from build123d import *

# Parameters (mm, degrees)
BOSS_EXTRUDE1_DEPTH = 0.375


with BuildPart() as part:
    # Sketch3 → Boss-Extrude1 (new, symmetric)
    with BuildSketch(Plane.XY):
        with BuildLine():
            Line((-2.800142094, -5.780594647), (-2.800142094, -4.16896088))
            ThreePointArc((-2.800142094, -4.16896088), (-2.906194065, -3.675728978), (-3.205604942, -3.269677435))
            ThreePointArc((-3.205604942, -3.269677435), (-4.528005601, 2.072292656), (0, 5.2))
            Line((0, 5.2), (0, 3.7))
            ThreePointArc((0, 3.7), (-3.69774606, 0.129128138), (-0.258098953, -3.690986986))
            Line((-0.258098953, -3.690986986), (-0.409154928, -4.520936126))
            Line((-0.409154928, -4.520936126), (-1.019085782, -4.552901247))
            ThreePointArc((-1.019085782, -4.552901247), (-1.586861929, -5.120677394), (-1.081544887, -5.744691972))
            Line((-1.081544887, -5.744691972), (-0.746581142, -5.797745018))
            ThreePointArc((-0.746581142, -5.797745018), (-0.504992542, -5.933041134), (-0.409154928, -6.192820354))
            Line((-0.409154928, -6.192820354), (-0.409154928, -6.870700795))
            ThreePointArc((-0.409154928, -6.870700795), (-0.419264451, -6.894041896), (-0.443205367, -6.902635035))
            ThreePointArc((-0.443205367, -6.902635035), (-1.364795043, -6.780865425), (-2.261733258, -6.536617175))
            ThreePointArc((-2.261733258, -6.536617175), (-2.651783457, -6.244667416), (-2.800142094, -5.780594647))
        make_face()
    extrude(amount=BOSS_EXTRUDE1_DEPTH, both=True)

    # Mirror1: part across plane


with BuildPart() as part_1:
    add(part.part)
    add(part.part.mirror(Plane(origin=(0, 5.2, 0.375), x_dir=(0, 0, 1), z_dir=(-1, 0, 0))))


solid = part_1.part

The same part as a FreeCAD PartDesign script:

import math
import FreeCAD as App
import Part
import Sketcher
Q = App.Units.Quantity

doc = App.newDocument("Part")
params = doc.addObject("Spreadsheet::Sheet", "Params")
for row, (alias, value) in enumerate([
    ("sketch1_radius", "0.8 mm"),
    ("sketch1_radius2", "0.4 mm"),
    ("sketch1_radius3", "0.6 mm"),
    ("sketch1_radius4", "3.7 mm"),
    ("sketch1_radius5", "1.2 mm"),
    ("pad1_length", "0.75 mm"),
], start=1):
    params.set(f"A{row}", alias)
    params.set(f"B{row}", "=" + value)
    params.setAlias(f"B{row}", alias)

body = doc.addObject("PartDesign::Body", "Body")

# Sketch on XY plane
sketch1 = doc.addObject("Sketcher::SketchObject", "Sketch")
body.addObject(sketch1)
sketch1.AttachmentSupport = (doc.XY_Plane, [""])
sketch1.MapMode = "FlatFace"
sketch1.addGeometry(Part.LineSegment(App.Vector(-2.800142, -4.168961, 0), App.Vector(-2.800142, -5.780595, 0)), False)
sketch1.addGeometry(Part.ArcOfCircle(Part.Circle(App.Vector(-2.000142, -5.780595, 0), App.Vector(0, 0, 1), 0.8), math.radians(180), math.radians(250.913881)), False)
sketch1.addGeometry(Part.ArcOfCircle(Part.Circle(App.Vector(0, 0, 0), App.Vector(0, 0, 1), 6.916849), math.radians(-109.086119), math.radians(-93.673812)), False)
sketch1.addGeometry(Part.ArcOfCircle(Part.Circle(App.Vector(-0.441155, -6.870701, 0), App.Vector(0, 0, 1), 0.032), math.radians(-93.673814), math.radians(-0.000002)), False)
sketch1.addGeometry(Part.LineSegment(App.Vector(-0.409155, -6.870701, 0), App.Vector(-0.409155, -6.19282, 0)), False)
sketch1.addGeometry(Part.ArcOfCircle(Part.Circle(App.Vector(-0.809155, -6.19282, 0), App.Vector(0, 0, 1), 0.4), math.radians(0), math.radians(81)), False)
sketch1.addGeometry(Part.LineSegment(App.Vector(-0.746581, -5.797745, 0), App.Vector(-1.081545, -5.744692, 0)), False)
sketch1.addGeometry(Part.ArcOfCircle(Part.Circle(App.Vector(-0.987684, -5.152079, 0), App.Vector(0, 0, 1), 0.6), math.radians(93), math.radians(261)), False)
sketch1.addGeometry(Part.LineSegment(App.Vector(-1.019086, -4.552901, 0), App.Vector(-0.409155, -4.520936, 0)), False)
sketch1.addGeometry(Part.LineSegment(App.Vector(-0.409155, -4.520936, 0), App.Vector(-0.258099, -3.690987, 0)), False)
sketch1.addGeometry(Part.ArcOfCircle(Part.Circle(App.Vector(0, 0, 0), App.Vector(0, 0, 1), 3.7), math.radians(90), math.radians(266)), False)
sketch1.addGeometry(Part.LineSegment(App.Vector(0, 3.7, 0), App.Vector(0, 5.2, 0)), False)
sketch1.addGeometry(Part.ArcOfCircle(Part.Circle(App.Vector(0, 0.358532, 0), App.Vector(0, 0, 1), 4.841468), math.radians(90), math.radians(228.538679)), False)
sketch1.addGeometry(Part.ArcOfCircle(Part.Circle(App.Vector(-4.000142, -4.168961, 0), App.Vector(0, 0, 1), 1.2), math.radians(0), math.radians(48.538679)), False)
sketch1.addConstraint(Sketcher.Constraint("Tangent", 0, 2, 1, 1))
sketch1.addConstraint(Sketcher.Constraint("Tangent", 1, 2, 2, 1))
sketch1.addConstraint(Sketcher.Constraint("Tangent", 2, 2, 3, 1))
sketch1.addConstraint(Sketcher.Constraint("Tangent", 3, 2, 4, 1))
sketch1.addConstraint(Sketcher.Constraint("Tangent", 4, 2, 5, 1))
sketch1.addConstraint(Sketcher.Constraint("Tangent", 5, 2, 6, 1))
sketch1.addConstraint(Sketcher.Constraint("Tangent", 6, 2, 7, 2))
sketch1.addConstraint(Sketcher.Constraint("Tangent", 7, 1, 8, 1))
sketch1.addConstraint(Sketcher.Constraint("Coincident", 8, 2, 9, 1))
sketch1.addConstraint(Sketcher.Constraint("Coincident", 9, 2, 10, 2))
sketch1.addConstraint(Sketcher.Constraint("Coincident", 10, 1, 11, 1))
sketch1.addConstraint(Sketcher.Constraint("Coincident", 11, 2, 12, 1))
sketch1.addConstraint(Sketcher.Constraint("Tangent", 12, 2, 13, 2))
sketch1.addConstraint(Sketcher.Constraint("Tangent", 13, 1, 0, 1))
sketch1.addConstraint(Sketcher.Constraint("Vertical", 0))
sketch1.addConstraint(Sketcher.Constraint("Vertical", 4))
sketch1.addConstraint(Sketcher.Constraint("Vertical", 11))
sketch1.addConstraint(Sketcher.Constraint("Coincident", 2, 3, -1, 1))
sketch1.addConstraint(Sketcher.Constraint("Coincident", 10, 3, -1, 1))
sketch1.addConstraint(Sketcher.Constraint("PointOnObject", 12, 3, -2))
sketch1.addConstraint(Sketcher.Constraint("PointOnObject", 10, 1, -2))
sketch1.addConstraint(Sketcher.Constraint("Vertical", 4, 2, 8, 2))
sketch1.addConstraint(Sketcher.Constraint("Radius", 1, 0.8))
sketch1.addConstraint(Sketcher.Constraint("Radius", 5, 0.4))
sketch1.addConstraint(Sketcher.Constraint("Radius", 7, 0.6))
sketch1.addConstraint(Sketcher.Constraint("Radius", 10, 3.7))
sketch1.addConstraint(Sketcher.Constraint("Radius", 13, 1.2))
sketch1.addConstraint(Sketcher.Constraint("Angle", 6, Q("171 deg")))
sketch1.addConstraint(Sketcher.Constraint("Angle", 8, Q("3 deg")))
sketch1.addConstraint(Sketcher.Constraint("DistanceY", 11, 1, 11, 2, 1.5))
sketch1.addConstraint(Sketcher.Constraint("Radius", 3, 0.032))
sketch1.addConstraint(Sketcher.Constraint("Radius", 2, 6.916849))
sketch1.addConstraint(Sketcher.Constraint("Radius", 12, 4.841468))
sketch1.addConstraint(Sketcher.Constraint("DistanceY", 4, 1, 4, 2, 0.67788))
sketch1.addConstraint(Sketcher.Constraint("DistanceY", 3, 3, -1, 1, 6.870701))
sketch1.addConstraint(Sketcher.Constraint("DistanceY", 7, 1, -1, 1, 4.552901))
sketch1.addConstraint(Sketcher.Constraint("DistanceX", 9, 2, -1, 1, 0.258099))
sketch1.addConstraint(Sketcher.Constraint("DistanceY", 7, 3, 12, 2, 1.882402))
sketch1.setExpression("Constraints[22]", "Params.sketch1_radius")
sketch1.setExpression("Constraints[23]", "Params.sketch1_radius2")
sketch1.setExpression("Constraints[24]", "Params.sketch1_radius3")
sketch1.setExpression("Constraints[25]", "Params.sketch1_radius4")
sketch1.setExpression("Constraints[26]", "Params.sketch1_radius5")
pad1 = doc.addObject("PartDesign::Pad", "Pad")
body.addObject(pad1)
pad1.Profile = sketch1
pad1.setExpression("Length", "Params.pad1_length")
pad1.Midplane = True
body2 = doc.addObject("PartDesign::Body", "Body001")
doc.recompute()

body2.BaseFeature = body
doc.recompute()

mirroring = doc.addObject("Part::Mirroring", "Mirroring")
mirroring.Source = body
mirroring.Base = App.Vector(0, 5.2, 0.375)
mirroring.Normal = App.Vector(-1, 0, 0)
body3 = doc.addObject("PartDesign::Body", "Body002")
body3.BaseFeature = mirroring
boolean = doc.addObject("PartDesign::Boolean", "Boolean")
body2.addObject(boolean)
boolean.Type = "Fuse"
boolean.addObjects([body3])
doc.recompute()
mirroring.Visibility = False

doc.recompute()
